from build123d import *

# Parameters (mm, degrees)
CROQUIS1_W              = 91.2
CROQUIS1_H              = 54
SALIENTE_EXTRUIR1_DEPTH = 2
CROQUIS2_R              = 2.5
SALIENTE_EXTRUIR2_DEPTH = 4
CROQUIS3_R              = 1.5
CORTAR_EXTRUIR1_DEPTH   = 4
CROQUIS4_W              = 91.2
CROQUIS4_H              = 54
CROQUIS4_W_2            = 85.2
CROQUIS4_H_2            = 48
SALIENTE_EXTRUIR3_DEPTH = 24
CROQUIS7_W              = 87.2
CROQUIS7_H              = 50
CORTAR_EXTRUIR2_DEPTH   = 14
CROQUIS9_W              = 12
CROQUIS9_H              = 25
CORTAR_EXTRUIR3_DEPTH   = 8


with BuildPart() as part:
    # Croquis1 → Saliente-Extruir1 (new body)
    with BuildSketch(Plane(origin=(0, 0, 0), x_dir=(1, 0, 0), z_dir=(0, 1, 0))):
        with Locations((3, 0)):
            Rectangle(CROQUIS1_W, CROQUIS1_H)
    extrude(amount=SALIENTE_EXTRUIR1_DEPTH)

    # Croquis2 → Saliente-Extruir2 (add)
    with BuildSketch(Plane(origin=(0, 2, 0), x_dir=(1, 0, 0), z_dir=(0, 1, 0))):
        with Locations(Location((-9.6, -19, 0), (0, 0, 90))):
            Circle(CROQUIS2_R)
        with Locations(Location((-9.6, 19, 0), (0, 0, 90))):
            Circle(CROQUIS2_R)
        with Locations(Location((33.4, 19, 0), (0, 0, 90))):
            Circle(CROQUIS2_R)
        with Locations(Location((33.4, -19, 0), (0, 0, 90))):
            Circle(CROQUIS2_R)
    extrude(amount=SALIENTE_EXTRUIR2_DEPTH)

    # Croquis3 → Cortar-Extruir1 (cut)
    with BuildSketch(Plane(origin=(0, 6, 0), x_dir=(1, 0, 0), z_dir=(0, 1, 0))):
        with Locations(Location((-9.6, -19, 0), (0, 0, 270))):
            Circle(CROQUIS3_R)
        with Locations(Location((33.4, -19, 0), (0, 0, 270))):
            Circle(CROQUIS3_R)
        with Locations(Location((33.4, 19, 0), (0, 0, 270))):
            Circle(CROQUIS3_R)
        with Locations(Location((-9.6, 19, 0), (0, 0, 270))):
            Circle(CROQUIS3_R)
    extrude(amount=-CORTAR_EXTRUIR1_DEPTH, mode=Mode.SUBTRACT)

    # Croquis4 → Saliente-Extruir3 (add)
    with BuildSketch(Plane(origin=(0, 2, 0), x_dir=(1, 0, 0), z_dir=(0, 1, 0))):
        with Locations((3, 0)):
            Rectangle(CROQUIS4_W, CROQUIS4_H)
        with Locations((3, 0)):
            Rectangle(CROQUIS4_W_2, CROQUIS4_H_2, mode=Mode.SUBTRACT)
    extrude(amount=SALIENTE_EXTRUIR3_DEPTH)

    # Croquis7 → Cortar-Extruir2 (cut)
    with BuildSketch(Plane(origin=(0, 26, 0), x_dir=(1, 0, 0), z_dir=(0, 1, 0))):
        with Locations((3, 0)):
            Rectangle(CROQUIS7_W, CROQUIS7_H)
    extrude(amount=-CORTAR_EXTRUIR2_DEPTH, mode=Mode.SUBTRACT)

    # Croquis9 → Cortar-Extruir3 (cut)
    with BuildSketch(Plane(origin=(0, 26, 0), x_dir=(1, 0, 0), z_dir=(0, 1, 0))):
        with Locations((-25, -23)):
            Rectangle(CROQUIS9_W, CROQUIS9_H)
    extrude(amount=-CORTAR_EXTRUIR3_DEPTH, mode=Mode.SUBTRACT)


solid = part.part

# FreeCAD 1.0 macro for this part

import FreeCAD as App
import Part
import Sketcher
Q = App.Units.Quantity


def add_polygon(sketch, points):
    """Adds a closed chain of lines whose ends are joined by coincident constraints."""
    first, n = sketch.GeometryCount, len(points)
    for a, b in zip(points, points[1:] + points[:1]):
        sketch.addGeometry(Part.LineSegment(App.Vector(*a, 0), App.Vector(*b, 0)), False)
    for i in range(n):
        sketch.addConstraint(Sketcher.Constraint("Coincident", first + i, 2, first + (i + 1) % n, 1))

doc = App.newDocument("Part")
body = doc.addObject("PartDesign::Body", "Body")

# Sketch on XZ plane
sketch1 = body.newObject("Sketcher::SketchObject", "Sketch")
sketch1.AttachmentSupport = (doc.getObject("XZ_Plane"), [""])
sketch1.MapMode = "FlatFace"
add_polygon(sketch1, [(-42.6, -27), (-42.6, 27), (48.6, 27), (48.6, -27)])  # lines 0-3
sketch1.addConstraint([
    Sketcher.Constraint("Vertical", 0),
    Sketcher.Constraint("Horizontal", 1),
    Sketcher.Constraint("Vertical", 2),
    Sketcher.Constraint("Horizontal", 3),
    Sketcher.Constraint("DistanceY", 0, 1, 0, 2, Q("54 mm")),
    Sketcher.Constraint("DistanceX", 1, 1, 1, 2, Q("91.2 mm")),
    Sketcher.Constraint("DistanceY", -1, 1, 0, 2, Q("27 mm")),
    Sketcher.Constraint("DistanceX", 0, 2, -1, 1, Q("42.6 mm")),
])
pad1 = body.newObject("PartDesign::Pad", "Pad")
pad1.Profile = sketch1
pad1.Length = 2
pad1.Reversed = True

# Sketch on XZ plane
sketch2 = body.newObject("Sketcher::SketchObject", "Sketch001")
sketch2.AttachmentSupport = (doc.getObject("XZ_Plane"), [""])
sketch2.MapMode = "FlatFace"
sketch2.AttachmentOffset = App.Placement(App.Vector(0, 0, -2), App.Rotation())
sketch2.addGeometry([
    Part.Circle(App.Vector(-9.6, 19, 0), App.Vector(0, 0, 1), 2.5),
    Part.Circle(App.Vector(-9.6, -19, 0), App.Vector(0, 0, 1), 2.5),
    Part.Circle(App.Vector(33.4, -19, 0), App.Vector(0, 0, 1), 2.5),
    Part.Circle(App.Vector(33.4, 19, 0), App.Vector(0, 0, 1), 2.5),
], False)
sketch2.addConstraint([
    Sketcher.Constraint("Equal", 0, 1),
    Sketcher.Constraint("Equal", 1, 2),
    Sketcher.Constraint("Equal", 2, 3),
    Sketcher.Constraint("Symmetric", 0, 3, 1, 3, -1),
    Sketcher.Constraint("Symmetric", 2, 3, 3, 3, -1),
    Sketcher.Constraint("Horizontal", 1, 3, 2, 3),
    Sketcher.Constraint("Diameter", 0, Q("5 mm")),
    Sketcher.Constraint("DistanceY", -1, 1, 0, 3, Q("19 mm")),
    Sketcher.Constraint("DistanceX", 1, 3, 2, 3, Q("43 mm")),
    Sketcher.Constraint("DistanceX", 0, 3, -1, 1, Q("9.6 mm")),
])
pad2 = body.newObject("PartDesign::Pad", "Pad001")
pad2.Profile = sketch2
pad2.Length = 4
pad2.Reversed = True

# Sketch on XZ plane
sketch3 = body.newObject("Sketcher::SketchObject", "Sketch002")
sketch3.AttachmentSupport = (doc.getObject("XZ_Plane"), [""])
sketch3.MapMode = "FlatFace"
sketch3.AttachmentOffset = App.Placement(App.Vector(0, 0, -6), App.Rotation())
sketch3.addGeometry([
    Part.Circle(App.Vector(-9.6, 19, 0), App.Vector(0, 0, 1), 1.5),
    Part.Circle(App.Vector(33.4, 19, 0), App.Vector(0, 0, 1), 1.5),
    Part.Circle(App.Vector(33.4, -19, 0), App.Vector(0, 0, 1), 1.5),
    Part.Circle(App.Vector(-9.6, -19, 0), App.Vector(0, 0, 1), 1.5),
], False)
sketch3.addConstraint([
    Sketcher.Constraint("Equal", 0, 1),
    Sketcher.Constraint("Equal", 1, 2),
    Sketcher.Constraint("Equal", 2, 3),
    Sketcher.Constraint("Symmetric", 1, 3, 2, 3, -1),
    Sketcher.Constraint("Symmetric", 0, 3, 3, 3, -1),
    Sketcher.Constraint("Horizontal", 0, 3, 1, 3),
    Sketcher.Constraint("Diameter", 0, Q("3 mm")),
    Sketcher.Constraint("DistanceY", -1, 1, 0, 3, Q("19 mm")),
    Sketcher.Constraint("DistanceX", 0, 3, 1, 3, Q("43 mm")),
    Sketcher.Constraint("DistanceX", 0, 3, -1, 1, Q("9.6 mm")),
])
pocket1 = body.newObject("PartDesign::Pocket", "Pocket")
pocket1.Profile = sketch3
pocket1.Length = 4
pocket1.Reversed = True

# Sketch on XZ plane
sketch4 = body.newObject("Sketcher::SketchObject", "Sketch003")
sketch4.AttachmentSupport = (doc.getObject("XZ_Plane"), [""])
sketch4.MapMode = "FlatFace"
sketch4.AttachmentOffset = App.Placement(App.Vector(0, 0, -2), App.Rotation())
add_polygon(sketch4, [(-42.6, -27), (-42.6, 27), (48.6, 27), (48.6, -27)])  # lines 0-3
add_polygon(sketch4, [(45.6, 24), (-39.6, 24), (-39.6, -24), (45.6, -24)])  # lines 4-7
sketch4.addConstraint([
    Sketcher.Constraint("Vertical", 0),
    Sketcher.Constraint("Horizontal", 1),
    Sketcher.Constraint("Vertical", 2),
    Sketcher.Constraint("Horizontal", 3),
    Sketcher.Constraint("Horizontal", 4),
    Sketcher.Constraint("Vertical", 5),
    Sketcher.Constraint("Horizontal", 6),
    Sketcher.Constraint("Vertical", 7),
    Sketcher.Constraint("DistanceY", 0, 1, 0, 2, Q("54 mm")),
    Sketcher.Constraint("DistanceY", 5, 2, 5, 1, Q("48 mm")),
    Sketcher.Constraint("DistanceX", 1, 1, 1, 2, Q("91.2 mm")),
    Sketcher.Constraint("DistanceX", 4, 2, 4, 1, Q("85.2 mm")),
    Sketcher.Constraint("DistanceY", -1, 1, 0, 2, Q("27 mm")),
    Sketcher.Constraint("DistanceY", -1, 1, 4, 2, Q("24 mm")),
    Sketcher.Constraint("DistanceX", 0, 2, 4, 2, Q("3 mm")),
    Sketcher.Constraint("DistanceX", 0, 2, -1, 1, Q("42.6 mm")),
])
pad3 = body.newObject("PartDesign::Pad", "Pad002")
pad3.Profile = sketch4
pad3.Length = 24
pad3.Reversed = True

# Sketch on XZ plane
sketch5 = body.newObject("Sketcher::SketchObject", "Sketch004")
sketch5.AttachmentSupport = (doc.getObject("XZ_Plane"), [""])
sketch5.MapMode = "FlatFace"
sketch5.AttachmentOffset = App.Placement(App.Vector(0, 0, -26), App.Rotation())
add_polygon(sketch5, [(-40.6, -25), (-40.6, 25), (46.6, 25), (46.6, -25)])  # lines 0-3
sketch5.addConstraint([
    Sketcher.Constraint("Vertical", 0),
    Sketcher.Constraint("Horizontal", 1),
    Sketcher.Constraint("Vertical", 2),
    Sketcher.Constraint("Horizontal", 3),
    Sketcher.Constraint("DistanceY", 0, 1, 0, 2, Q("50 mm")),
    Sketcher.Constraint("DistanceX", 1, 1, 1, 2, Q("87.2 mm")),
    Sketcher.Constraint("DistanceY", -1, 1, 0, 2, Q("25 mm")),
    Sketcher.Constraint("DistanceX", 0, 2, -1, 1, Q("40.6 mm")),
])
pocket2 = body.newObject("PartDesign::Pocket", "Pocket001")
pocket2.Profile = sketch5
pocket2.Length = 14
pocket2.Reversed = True

# Sketch on XZ plane
sketch6 = body.newObject("Sketcher::SketchObject", "Sketch005")
sketch6.AttachmentSupport = (doc.getObject("XZ_Plane"), [""])
sketch6.MapMode = "FlatFace"
sketch6.AttachmentOffset = App.Placement(App.Vector(0, 0, -26), App.Rotation())
add_polygon(sketch6, [(-31, 10.5), (-31, 35.5), (-19, 35.5), (-19, 10.5)])  # lines 0-3
sketch6.addConstraint([
    Sketcher.Constraint("Vertical", 0),
    Sketcher.Constraint("Horizontal", 1),
    Sketcher.Constraint("Vertical", 2),
    Sketcher.Constraint("Horizontal", 3),
    Sketcher.Constraint("DistanceX", 1, 1, 1, 2, Q("12 mm")),
    Sketcher.Constraint("DistanceY", 0, 1, 0, 2, Q("25 mm")),
    Sketcher.Constraint("DistanceX", 0, 2, -1, 1, Q("31 mm")),
    Sketcher.Constraint("DistanceY", -1, 1, 0, 2, Q("35.5 mm")),
])
pocket3 = body.newObject("PartDesign::Pocket", "Pocket002")
pocket3.Profile = sketch6
pocket3.Length = 8
pocket3.Reversed = True

doc.recompute()
